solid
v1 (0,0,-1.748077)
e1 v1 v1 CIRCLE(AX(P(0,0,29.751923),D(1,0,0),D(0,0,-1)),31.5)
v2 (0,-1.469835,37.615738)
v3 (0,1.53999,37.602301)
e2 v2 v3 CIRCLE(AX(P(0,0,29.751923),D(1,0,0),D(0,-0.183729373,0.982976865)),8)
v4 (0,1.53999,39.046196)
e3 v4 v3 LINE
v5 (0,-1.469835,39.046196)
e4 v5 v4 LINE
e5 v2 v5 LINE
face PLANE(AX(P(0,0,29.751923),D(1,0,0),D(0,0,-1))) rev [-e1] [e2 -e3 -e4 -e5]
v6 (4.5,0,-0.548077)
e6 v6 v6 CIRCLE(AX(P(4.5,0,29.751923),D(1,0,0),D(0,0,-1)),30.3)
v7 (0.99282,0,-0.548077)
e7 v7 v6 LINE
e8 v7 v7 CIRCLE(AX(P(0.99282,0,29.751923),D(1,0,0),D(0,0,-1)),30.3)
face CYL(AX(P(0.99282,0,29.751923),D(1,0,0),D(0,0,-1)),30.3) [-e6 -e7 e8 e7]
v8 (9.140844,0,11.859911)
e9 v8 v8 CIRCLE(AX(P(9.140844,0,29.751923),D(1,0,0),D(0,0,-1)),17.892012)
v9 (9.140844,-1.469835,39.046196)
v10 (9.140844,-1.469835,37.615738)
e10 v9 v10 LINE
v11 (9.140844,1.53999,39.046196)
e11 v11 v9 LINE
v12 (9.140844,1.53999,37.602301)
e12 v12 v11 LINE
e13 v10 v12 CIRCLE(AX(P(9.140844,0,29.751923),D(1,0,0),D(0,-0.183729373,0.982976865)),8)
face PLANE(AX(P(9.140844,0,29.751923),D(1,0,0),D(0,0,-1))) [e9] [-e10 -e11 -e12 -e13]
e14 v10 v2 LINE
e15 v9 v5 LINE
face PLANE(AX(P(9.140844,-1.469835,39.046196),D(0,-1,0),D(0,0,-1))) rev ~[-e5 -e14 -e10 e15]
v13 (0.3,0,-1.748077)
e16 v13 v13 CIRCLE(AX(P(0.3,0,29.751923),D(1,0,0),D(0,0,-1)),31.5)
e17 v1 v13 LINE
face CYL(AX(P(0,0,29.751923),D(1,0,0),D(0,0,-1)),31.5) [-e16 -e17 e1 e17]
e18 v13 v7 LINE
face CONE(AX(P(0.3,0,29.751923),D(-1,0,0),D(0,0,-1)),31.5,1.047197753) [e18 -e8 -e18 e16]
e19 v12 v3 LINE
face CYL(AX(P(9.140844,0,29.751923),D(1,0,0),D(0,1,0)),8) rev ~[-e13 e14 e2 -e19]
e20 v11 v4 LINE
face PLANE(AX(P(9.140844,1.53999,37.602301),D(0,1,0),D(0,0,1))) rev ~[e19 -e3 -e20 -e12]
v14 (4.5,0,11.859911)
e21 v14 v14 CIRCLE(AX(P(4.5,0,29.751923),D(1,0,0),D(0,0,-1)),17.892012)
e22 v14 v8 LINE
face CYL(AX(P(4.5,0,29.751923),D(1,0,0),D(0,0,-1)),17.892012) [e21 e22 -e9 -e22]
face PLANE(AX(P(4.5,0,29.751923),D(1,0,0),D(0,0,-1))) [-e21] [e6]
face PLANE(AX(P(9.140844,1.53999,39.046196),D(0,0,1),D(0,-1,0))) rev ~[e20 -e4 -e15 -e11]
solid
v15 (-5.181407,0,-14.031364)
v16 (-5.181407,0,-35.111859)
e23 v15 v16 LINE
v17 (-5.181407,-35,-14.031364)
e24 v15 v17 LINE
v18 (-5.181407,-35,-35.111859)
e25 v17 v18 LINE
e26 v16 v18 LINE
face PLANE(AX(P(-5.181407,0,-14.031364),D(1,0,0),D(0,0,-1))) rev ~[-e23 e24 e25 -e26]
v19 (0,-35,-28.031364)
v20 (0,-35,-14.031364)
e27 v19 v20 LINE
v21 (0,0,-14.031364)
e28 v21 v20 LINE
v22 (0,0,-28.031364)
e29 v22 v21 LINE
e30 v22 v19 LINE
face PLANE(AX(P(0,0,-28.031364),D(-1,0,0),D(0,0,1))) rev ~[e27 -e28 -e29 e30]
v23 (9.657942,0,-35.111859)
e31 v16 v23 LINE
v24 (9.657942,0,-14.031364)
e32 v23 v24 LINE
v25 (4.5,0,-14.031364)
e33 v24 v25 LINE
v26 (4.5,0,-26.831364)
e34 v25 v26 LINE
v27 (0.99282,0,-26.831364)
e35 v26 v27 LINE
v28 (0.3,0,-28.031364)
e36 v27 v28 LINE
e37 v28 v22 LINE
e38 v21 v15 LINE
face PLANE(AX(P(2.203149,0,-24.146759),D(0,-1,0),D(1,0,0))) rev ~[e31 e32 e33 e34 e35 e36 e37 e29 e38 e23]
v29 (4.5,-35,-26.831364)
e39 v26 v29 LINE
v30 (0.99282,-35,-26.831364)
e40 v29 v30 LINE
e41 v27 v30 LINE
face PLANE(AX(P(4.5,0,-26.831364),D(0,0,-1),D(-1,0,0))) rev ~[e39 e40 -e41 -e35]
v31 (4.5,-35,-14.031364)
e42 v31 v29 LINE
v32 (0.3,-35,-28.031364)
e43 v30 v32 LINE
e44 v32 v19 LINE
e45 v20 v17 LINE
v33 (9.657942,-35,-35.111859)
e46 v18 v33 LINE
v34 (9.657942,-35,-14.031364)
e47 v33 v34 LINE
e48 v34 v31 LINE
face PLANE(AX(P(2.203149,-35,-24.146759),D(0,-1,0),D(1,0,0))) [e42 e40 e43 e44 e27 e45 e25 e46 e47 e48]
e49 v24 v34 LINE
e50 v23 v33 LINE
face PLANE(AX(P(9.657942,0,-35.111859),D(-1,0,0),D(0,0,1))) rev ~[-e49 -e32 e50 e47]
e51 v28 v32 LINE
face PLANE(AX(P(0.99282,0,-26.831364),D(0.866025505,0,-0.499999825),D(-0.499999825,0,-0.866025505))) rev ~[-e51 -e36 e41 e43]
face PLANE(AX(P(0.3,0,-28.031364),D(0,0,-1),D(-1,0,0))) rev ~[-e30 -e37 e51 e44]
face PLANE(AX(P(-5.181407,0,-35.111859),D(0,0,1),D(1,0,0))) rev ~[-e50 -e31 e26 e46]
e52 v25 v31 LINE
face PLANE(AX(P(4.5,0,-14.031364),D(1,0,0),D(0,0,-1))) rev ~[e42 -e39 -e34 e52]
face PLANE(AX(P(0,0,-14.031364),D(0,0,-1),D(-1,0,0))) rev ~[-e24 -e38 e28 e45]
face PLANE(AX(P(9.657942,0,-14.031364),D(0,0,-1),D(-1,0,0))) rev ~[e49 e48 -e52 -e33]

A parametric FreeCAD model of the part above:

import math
import FreeCAD as App
import Part
import Sketcher
from FreeCAD import Vector
Q = App.Units.Quantity


def add_polygon(sketch, points):
    """Adds a closed chain of lines whose ends are joined by coincident constraints."""
    first, n = sketch.GeometryCount, len(points)
    for a, b in zip(points, points[1:] + points[:1]):
        sketch.addGeometry(Part.LineSegment(App.Vector(*a, 0), App.Vector(*b, 0)), False)
    for i in range(n):
        sketch.addConstraint(Sketcher.Constraint("Coincident", first + i, 2, first + (i + 1) % n, 1))

doc = App.newDocument("Part")
body = doc.addObject("PartDesign::Body", "Body")

# Sketch on XZ plane
sketch1 = body.newObject("Sketcher::SketchObject", "Sketch")
sketch1.AttachmentSupport = (doc.getObject("XZ_Plane"), [""])
sketch1.MapMode = "FlatFace"
add_polygon(sketch1, [(0, 29.751923), (0, -1.748077), (0.3, -1.748077), (0.99282, -0.548077), (4.5, -0.548077), (4.5, 11.859911), (9.140844, 11.859911), (9.140844, 29.751923)])  # lines 0-7
sketch1.addGeometry(Part.LineSegment(Vector(0, 29.751923, 0), Vector(9.140844, 29.751923, 0)), True)  # axis
sketch1.addConstraint(Sketcher.Constraint("Vertical", 0))
sketch1.addConstraint(Sketcher.Constraint("Horizontal", 1))
sketch1.addConstraint(Sketcher.Constraint("Horizontal", 3))
sketch1.addConstraint(Sketcher.Constraint("Vertical", 4))
sketch1.addConstraint(Sketcher.Constraint("Horizontal", 5))
sketch1.addConstraint(Sketcher.Constraint("Vertical", 6))
sketch1.addConstraint(Sketcher.Constraint("Horizontal", 7))
sketch1.addConstraint(Sketcher.Constraint("Horizontal", 8))
sketch1.addConstraint(Sketcher.Constraint("Coincident", 8, 1, 7, 2))
sketch1.addConstraint(Sketcher.Constraint("PointOnObject", 0, 2, -2))
sketch1.addConstraint(Sketcher.Constraint("Vertical", 5, 2, 8, 2))
sketch1.addConstraint(Sketcher.Constraint("Angle", 2, Q("60.000012 deg")))
sketch1.addConstraint(Sketcher.Constraint("DistanceX", 1, 1, 1, 2, 0.3))
sketch1.addConstraint(Sketcher.Constraint("DistanceY", 0, 2, 0, 1, 31.5))
sketch1.addConstraint(Sketcher.Constraint("DistanceX", -1, 1, 3, 2, 4.5))
sketch1.addConstraint(Sketcher.Constraint("DistanceY", 1, 2, 2, 2, 1.2))
sketch1.addConstraint(Sketcher.Constraint("DistanceX", 5, 1, 5, 2, 4.640844))
sketch1.addConstraint(Sketcher.Constraint("DistanceY", 4, 1, 4, 2, 12.407988))
sketch1.addConstraint(Sketcher.Constraint("DistanceY", -1, 1, 4, 2, 11.859911))
revolution = body.newObject("PartDesign::Revolution", "Revolution")
revolution.Profile = sketch1
revolution.ReferenceAxis = (sketch1, ["Axis0"])
revolution.Angle = 360

# Sketch on YZ plane
sketch2 = body.newObject("Sketcher::SketchObject", "Sketch001")
sketch2.AttachmentSupport = (doc.getObject("YZ_Plane"), [""])
sketch2.MapMode = "FlatFace"
sketch2.AttachmentOffset = App.Placement(Vector(0, 0, 9.140844), App.Rotation())
sketch2.addGeometry(Part.Circle(Vector(0, 29.751923, 0), Vector(0, 0, 1), 8), False)
sketch2.addConstraint(Sketcher.Constraint("PointOnObject", 0, 3, -2))
sketch2.addConstraint(Sketcher.Constraint("Diameter", 0, 16.0))
sketch2.addConstraint(Sketcher.Constraint("DistanceY", -1, 1, 0, 3, 29.751923))
pocket1 = body.newObject("PartDesign::Pocket", "Pocket")
pocket1.Profile = sketch2
pocket1.Length = 25

# Sketch on YZ plane
sketch3 = body.newObject("Sketcher::SketchObject", "Sketch002")
sketch3.AttachmentSupport = (doc.getObject("YZ_Plane"), [""])
sketch3.MapMode = "FlatFace"
sketch3.AttachmentOffset = App.Placement(Vector(0, 0, 9.140844), App.Rotation())
sketch3.addGeometry(Part.LineSegment(Vector(1.53999, 39.046196, 0), Vector(-1.469835, 39.046196, 0)), False)
sketch3.addGeometry(Part.LineSegment(Vector(-1.469835, 39.046196, 0), Vector(-1.469835, 37.615738, 0)), False)
sketch3.addGeometry(Part.ArcOfCircle(Part.Circle(Vector(0.000001, 29.751954, 0), Vector(0, 0, 1), 7.999969), math.radians(78.901317), math.radians(100.587106)), False)
sketch3.addGeometry(Part.LineSegment(Vector(1.53999, 37.602301, 0), Vector(1.53999, 39.046196, 0)), False)
sketch3.addConstraint(Sketcher.Constraint("Coincident", 0, 2, 1, 1))
sketch3.addConstraint(Sketcher.Constraint("Coincident", 1, 2, 2, 2))
sketch3.addConstraint(Sketcher.Constraint("Coincident", 2, 1, 3, 1))
sketch3.addConstraint(Sketcher.Constraint("Coincident", 3, 2, 0, 1))
sketch3.addConstraint(Sketcher.Constraint("Horizontal", 0))
sketch3.addConstraint(Sketcher.Constraint("Vertical", 1))
sketch3.addConstraint(Sketcher.Constraint("Vertical", 3))
sketch3.addConstraint(Sketcher.Constraint("PointOnObject", 2, 3, -2))
sketch3.addConstraint(Sketcher.Constraint("Radius", 2, 7.999969))
sketch3.addConstraint(Sketcher.Constraint("DistanceY", 1, 2, 1, 1, 1.430458))
sketch3.addConstraint(Sketcher.Constraint("DistanceY", -1, 1, 2, 1, 37.602301))
sketch3.addConstraint(Sketcher.Constraint("DistanceX", 0, 2, 0, 1, 3.009825))
sketch3.addConstraint(Sketcher.Constraint("DistanceY", 3, 1, 3, 2, 1.443895))
pocket2 = body.newObject("PartDesign::Pocket", "Pocket001")
pocket2.Profile = sketch3
pocket2.Length = 25
body2 = doc.addObject("PartDesign::Body", "Body001")

# Sketch on XZ plane
sketch4 = body2.newObject("Sketcher::SketchObject", "Sketch003")
sketch4.AttachmentSupport = (doc.getObject("XZ_Plane001"), [""])
sketch4.MapMode = "FlatFace"
add_polygon(sketch4, [(4.5, -26.831364), (0.99282, -26.831364), (0.3, -28.031364), (0, -28.031364), (0, -14.031364), (-5.181407, -14.031364), (-5.181407, -35.111859), (9.657942, -35.111859), (9.657942, -14.031364), (4.5, -14.031364)])  # lines 0-9
sketch4.addConstraint(Sketcher.Constraint("Horizontal", 0))
sketch4.addConstraint(Sketcher.Constraint("Horizontal", 2))
sketch4.addConstraint(Sketcher.Constraint("Vertical", 3))
sketch4.addConstraint(Sketcher.Constraint("Horizontal", 4))
sketch4.addConstraint(Sketcher.Constraint("Vertical", 5))
sketch4.addConstraint(Sketcher.Constraint("Horizontal", 6))
sketch4.addConstraint(Sketcher.Constraint("Vertical", 7))
sketch4.addConstraint(Sketcher.Constraint("Horizontal", 8))
sketch4.addConstraint(Sketcher.Constraint("Vertical", 9))
sketch4.addConstraint(Sketcher.Constraint("PointOnObject", 2, 2, -2))
sketch4.addConstraint(Sketcher.Constraint("Horizontal", 4, 2, 7, 2))
sketch4.addConstraint(Sketcher.Constraint("DistanceY", 3, 1, 3, 2, 14.0))
sketch4.addConstraint(Sketcher.Constraint("Angle", 1, Q("-119.999988 deg")))
sketch4.addConstraint(Sketcher.Constraint("DistanceX", 2, 2, 2, 1, 0.3))
sketch4.addConstraint(Sketcher.Constraint("DistanceY", 9, 2, 9, 1, 12.8))
sketch4.addConstraint(Sketcher.Constraint("DistanceX", -1, 1, 8, 2, 4.5))
sketch4.addConstraint(Sketcher.Constraint("DistanceX", 6, 1, 6, 2, 14.839349))
sketch4.addConstraint(Sketcher.Constraint("DistanceX", 4, 2, 4, 1, 5.181407))
sketch4.addConstraint(Sketcher.Constraint("DistanceY", 5, 2, 5, 1, 21.080495))
sketch4.addConstraint(Sketcher.Constraint("DistanceY", 5, 2, -1, 1, 35.111859))
pad1 = body2.newObject("PartDesign::Pad", "Pad")
pad1.Profile = sketch4
pad1.Length = 35

doc.recompute()
